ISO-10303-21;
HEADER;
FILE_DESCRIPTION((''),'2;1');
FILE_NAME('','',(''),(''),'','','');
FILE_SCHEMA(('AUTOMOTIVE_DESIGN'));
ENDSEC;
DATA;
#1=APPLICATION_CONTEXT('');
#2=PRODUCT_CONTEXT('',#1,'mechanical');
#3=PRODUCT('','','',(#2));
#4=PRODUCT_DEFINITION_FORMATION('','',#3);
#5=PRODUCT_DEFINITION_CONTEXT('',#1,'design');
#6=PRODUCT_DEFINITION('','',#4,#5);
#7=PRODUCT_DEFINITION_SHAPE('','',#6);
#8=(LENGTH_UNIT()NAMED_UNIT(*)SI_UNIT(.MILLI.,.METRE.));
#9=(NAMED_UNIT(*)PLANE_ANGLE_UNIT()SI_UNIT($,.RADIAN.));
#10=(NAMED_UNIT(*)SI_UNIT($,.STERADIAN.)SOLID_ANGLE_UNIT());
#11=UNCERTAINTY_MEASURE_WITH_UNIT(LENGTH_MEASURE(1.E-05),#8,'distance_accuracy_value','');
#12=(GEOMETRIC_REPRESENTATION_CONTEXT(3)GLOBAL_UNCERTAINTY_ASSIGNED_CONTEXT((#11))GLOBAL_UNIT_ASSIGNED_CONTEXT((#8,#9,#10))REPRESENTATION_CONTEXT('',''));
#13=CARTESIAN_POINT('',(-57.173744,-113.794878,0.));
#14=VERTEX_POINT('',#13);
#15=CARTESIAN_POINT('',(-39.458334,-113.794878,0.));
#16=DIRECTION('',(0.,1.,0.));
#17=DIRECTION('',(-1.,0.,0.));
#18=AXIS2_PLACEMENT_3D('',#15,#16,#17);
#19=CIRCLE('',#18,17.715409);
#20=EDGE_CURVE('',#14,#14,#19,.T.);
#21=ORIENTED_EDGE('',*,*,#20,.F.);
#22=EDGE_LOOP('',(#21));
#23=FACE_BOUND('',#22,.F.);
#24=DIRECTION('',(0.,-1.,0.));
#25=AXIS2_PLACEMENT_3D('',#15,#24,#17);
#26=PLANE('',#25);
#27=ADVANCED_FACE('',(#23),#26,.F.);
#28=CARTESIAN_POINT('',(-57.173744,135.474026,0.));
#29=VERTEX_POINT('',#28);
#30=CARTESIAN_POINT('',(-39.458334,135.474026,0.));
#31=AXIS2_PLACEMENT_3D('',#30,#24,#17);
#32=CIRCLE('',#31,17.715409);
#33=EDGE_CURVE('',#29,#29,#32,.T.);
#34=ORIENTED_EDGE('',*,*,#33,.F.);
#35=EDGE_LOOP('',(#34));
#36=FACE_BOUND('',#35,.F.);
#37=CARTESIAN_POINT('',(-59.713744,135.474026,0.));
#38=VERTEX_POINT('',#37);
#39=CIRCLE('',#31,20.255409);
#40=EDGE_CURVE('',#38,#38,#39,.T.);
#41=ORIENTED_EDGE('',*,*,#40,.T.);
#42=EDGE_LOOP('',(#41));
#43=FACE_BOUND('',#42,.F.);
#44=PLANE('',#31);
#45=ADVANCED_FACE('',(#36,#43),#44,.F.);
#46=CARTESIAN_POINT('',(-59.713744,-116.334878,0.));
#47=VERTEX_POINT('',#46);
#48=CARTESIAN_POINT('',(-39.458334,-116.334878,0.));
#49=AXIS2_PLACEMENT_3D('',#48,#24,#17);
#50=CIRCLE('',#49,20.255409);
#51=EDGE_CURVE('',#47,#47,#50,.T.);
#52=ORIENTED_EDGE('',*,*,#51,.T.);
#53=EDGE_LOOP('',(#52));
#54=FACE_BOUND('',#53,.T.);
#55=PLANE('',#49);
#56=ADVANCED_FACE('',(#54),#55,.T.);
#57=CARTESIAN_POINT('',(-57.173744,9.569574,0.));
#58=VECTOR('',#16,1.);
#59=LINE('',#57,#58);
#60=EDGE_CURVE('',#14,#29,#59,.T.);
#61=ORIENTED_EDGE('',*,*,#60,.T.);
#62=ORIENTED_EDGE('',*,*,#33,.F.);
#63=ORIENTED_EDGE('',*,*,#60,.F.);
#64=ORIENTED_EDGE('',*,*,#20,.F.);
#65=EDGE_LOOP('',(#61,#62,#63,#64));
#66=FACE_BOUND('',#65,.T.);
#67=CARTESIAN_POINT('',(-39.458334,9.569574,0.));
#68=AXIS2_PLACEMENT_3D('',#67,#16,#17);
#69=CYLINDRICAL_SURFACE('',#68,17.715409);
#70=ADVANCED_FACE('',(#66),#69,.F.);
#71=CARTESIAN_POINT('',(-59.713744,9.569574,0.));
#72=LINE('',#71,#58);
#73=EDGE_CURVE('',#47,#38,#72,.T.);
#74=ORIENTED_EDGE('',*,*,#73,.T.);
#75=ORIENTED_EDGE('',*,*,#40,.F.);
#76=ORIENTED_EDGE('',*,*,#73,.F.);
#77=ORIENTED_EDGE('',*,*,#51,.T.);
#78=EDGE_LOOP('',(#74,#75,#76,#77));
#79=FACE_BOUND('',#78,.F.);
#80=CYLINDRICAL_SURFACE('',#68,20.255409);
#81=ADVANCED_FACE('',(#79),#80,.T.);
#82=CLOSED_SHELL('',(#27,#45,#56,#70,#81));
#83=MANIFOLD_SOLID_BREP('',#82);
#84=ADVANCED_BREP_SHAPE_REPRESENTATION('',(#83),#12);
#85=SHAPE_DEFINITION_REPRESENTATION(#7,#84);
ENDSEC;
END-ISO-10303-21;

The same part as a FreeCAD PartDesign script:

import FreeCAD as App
import Part
import Sketcher


def faces_at(feature, points):
    """Names of the faces that lie closest to the given points."""
    faces = feature.Shape.Faces
    near = lambda p: min(range(len(faces)), key=lambda i: faces[i].distToShape(Part.Vertex(*p))[0])
    return sorted({f"Face{near(p) + 1}" for p in points})

doc = App.newDocument("Part")
params = doc.addObject("Spreadsheet::Sheet", "Params")
for row, (alias, value) in enumerate([
    ("revolution_angle", "360 deg"),
    ("thickness_wall", "0.1 in"),
], start=1):
    params.set(f"A{row}", alias)
    params.set(f"B{row}", "=" + value)
    params.setAlias(f"B{row}", alias)

body = doc.addObject("PartDesign::Body", "Body")

# Sketch on XY plane
sketch1 = doc.addObject("Sketcher::SketchObject", "Sketch")
body.addObject(sketch1)
sketch1.AttachmentSupport = (doc.XY_Plane, [""])
sketch1.MapMode = "FlatFace"
sketch1.addGeometry([
    Part.LineSegment(App.Vector(-60, 135, 0), App.Vector(-60, -116, 0)),
    Part.LineSegment(App.Vector(-60, -116, 0), App.Vector(-39, -116, 0)),
    Part.LineSegment(App.Vector(-39, -116, 0), App.Vector(-39, 135, 0)),
    Part.LineSegment(App.Vector(-39, 135, 0), App.Vector(-60, 135, 0)),
], False)
sketch1.addGeometry(Part.LineSegment(App.Vector(-39, 135, 0), App.Vector(-39, -116, 0)), True)  # axis
sketch1.addConstraint([
    Sketcher.Constraint("Coincident", 0, 2, 1, 1),
    Sketcher.Constraint("Coincident", 1, 2, 2, 1),
    Sketcher.Constraint("Coincident", 2, 2, 3, 1),
    Sketcher.Constraint("Coincident", 3, 2, 0, 1),
    Sketcher.Constraint("Vertical", 0),
    Sketcher.Constraint("Horizontal", 1),
    Sketcher.Constraint("Vertical", 2),
    Sketcher.Constraint("Horizontal", 3),
    Sketcher.Constraint("Vertical", 4),
    Sketcher.Constraint("Coincident", 4, 1, 2, 2),
    Sketcher.Constraint("Horizontal", 0, 2, 4, 2),
    Sketcher.Constraint("DistanceX", 1, 1, 1, 2, 20.255409),
    Sketcher.Constraint("DistanceY", 0, 2, 0, 1, 251.808904),
    Sketcher.Constraint("DistanceX", 0, 2, -1, 1, 59.713744),
    Sketcher.Constraint("DistanceY", 0, 2, -1, 1, 116.334878),
])
revolution = doc.addObject("PartDesign::Revolution", "Revolution")
body.addObject(revolution)
revolution.Profile = sketch1
revolution.ReferenceAxis = (sketch1, ["Axis0"])
revolution.setExpression("Angle", "Params.revolution_angle")
doc.recompute()

thickness = doc.addObject("PartDesign::Thickness", "Thickness")
body.addObject(thickness)
thickness.Base = (revolution, faces_at(revolution, [(-39.458, 135.474, 0)]))
thickness.setExpression("Value", "Params.thickness_wall")
thickness.Reversed = True
thickness.Join = "Arc"

doc.recompute()
